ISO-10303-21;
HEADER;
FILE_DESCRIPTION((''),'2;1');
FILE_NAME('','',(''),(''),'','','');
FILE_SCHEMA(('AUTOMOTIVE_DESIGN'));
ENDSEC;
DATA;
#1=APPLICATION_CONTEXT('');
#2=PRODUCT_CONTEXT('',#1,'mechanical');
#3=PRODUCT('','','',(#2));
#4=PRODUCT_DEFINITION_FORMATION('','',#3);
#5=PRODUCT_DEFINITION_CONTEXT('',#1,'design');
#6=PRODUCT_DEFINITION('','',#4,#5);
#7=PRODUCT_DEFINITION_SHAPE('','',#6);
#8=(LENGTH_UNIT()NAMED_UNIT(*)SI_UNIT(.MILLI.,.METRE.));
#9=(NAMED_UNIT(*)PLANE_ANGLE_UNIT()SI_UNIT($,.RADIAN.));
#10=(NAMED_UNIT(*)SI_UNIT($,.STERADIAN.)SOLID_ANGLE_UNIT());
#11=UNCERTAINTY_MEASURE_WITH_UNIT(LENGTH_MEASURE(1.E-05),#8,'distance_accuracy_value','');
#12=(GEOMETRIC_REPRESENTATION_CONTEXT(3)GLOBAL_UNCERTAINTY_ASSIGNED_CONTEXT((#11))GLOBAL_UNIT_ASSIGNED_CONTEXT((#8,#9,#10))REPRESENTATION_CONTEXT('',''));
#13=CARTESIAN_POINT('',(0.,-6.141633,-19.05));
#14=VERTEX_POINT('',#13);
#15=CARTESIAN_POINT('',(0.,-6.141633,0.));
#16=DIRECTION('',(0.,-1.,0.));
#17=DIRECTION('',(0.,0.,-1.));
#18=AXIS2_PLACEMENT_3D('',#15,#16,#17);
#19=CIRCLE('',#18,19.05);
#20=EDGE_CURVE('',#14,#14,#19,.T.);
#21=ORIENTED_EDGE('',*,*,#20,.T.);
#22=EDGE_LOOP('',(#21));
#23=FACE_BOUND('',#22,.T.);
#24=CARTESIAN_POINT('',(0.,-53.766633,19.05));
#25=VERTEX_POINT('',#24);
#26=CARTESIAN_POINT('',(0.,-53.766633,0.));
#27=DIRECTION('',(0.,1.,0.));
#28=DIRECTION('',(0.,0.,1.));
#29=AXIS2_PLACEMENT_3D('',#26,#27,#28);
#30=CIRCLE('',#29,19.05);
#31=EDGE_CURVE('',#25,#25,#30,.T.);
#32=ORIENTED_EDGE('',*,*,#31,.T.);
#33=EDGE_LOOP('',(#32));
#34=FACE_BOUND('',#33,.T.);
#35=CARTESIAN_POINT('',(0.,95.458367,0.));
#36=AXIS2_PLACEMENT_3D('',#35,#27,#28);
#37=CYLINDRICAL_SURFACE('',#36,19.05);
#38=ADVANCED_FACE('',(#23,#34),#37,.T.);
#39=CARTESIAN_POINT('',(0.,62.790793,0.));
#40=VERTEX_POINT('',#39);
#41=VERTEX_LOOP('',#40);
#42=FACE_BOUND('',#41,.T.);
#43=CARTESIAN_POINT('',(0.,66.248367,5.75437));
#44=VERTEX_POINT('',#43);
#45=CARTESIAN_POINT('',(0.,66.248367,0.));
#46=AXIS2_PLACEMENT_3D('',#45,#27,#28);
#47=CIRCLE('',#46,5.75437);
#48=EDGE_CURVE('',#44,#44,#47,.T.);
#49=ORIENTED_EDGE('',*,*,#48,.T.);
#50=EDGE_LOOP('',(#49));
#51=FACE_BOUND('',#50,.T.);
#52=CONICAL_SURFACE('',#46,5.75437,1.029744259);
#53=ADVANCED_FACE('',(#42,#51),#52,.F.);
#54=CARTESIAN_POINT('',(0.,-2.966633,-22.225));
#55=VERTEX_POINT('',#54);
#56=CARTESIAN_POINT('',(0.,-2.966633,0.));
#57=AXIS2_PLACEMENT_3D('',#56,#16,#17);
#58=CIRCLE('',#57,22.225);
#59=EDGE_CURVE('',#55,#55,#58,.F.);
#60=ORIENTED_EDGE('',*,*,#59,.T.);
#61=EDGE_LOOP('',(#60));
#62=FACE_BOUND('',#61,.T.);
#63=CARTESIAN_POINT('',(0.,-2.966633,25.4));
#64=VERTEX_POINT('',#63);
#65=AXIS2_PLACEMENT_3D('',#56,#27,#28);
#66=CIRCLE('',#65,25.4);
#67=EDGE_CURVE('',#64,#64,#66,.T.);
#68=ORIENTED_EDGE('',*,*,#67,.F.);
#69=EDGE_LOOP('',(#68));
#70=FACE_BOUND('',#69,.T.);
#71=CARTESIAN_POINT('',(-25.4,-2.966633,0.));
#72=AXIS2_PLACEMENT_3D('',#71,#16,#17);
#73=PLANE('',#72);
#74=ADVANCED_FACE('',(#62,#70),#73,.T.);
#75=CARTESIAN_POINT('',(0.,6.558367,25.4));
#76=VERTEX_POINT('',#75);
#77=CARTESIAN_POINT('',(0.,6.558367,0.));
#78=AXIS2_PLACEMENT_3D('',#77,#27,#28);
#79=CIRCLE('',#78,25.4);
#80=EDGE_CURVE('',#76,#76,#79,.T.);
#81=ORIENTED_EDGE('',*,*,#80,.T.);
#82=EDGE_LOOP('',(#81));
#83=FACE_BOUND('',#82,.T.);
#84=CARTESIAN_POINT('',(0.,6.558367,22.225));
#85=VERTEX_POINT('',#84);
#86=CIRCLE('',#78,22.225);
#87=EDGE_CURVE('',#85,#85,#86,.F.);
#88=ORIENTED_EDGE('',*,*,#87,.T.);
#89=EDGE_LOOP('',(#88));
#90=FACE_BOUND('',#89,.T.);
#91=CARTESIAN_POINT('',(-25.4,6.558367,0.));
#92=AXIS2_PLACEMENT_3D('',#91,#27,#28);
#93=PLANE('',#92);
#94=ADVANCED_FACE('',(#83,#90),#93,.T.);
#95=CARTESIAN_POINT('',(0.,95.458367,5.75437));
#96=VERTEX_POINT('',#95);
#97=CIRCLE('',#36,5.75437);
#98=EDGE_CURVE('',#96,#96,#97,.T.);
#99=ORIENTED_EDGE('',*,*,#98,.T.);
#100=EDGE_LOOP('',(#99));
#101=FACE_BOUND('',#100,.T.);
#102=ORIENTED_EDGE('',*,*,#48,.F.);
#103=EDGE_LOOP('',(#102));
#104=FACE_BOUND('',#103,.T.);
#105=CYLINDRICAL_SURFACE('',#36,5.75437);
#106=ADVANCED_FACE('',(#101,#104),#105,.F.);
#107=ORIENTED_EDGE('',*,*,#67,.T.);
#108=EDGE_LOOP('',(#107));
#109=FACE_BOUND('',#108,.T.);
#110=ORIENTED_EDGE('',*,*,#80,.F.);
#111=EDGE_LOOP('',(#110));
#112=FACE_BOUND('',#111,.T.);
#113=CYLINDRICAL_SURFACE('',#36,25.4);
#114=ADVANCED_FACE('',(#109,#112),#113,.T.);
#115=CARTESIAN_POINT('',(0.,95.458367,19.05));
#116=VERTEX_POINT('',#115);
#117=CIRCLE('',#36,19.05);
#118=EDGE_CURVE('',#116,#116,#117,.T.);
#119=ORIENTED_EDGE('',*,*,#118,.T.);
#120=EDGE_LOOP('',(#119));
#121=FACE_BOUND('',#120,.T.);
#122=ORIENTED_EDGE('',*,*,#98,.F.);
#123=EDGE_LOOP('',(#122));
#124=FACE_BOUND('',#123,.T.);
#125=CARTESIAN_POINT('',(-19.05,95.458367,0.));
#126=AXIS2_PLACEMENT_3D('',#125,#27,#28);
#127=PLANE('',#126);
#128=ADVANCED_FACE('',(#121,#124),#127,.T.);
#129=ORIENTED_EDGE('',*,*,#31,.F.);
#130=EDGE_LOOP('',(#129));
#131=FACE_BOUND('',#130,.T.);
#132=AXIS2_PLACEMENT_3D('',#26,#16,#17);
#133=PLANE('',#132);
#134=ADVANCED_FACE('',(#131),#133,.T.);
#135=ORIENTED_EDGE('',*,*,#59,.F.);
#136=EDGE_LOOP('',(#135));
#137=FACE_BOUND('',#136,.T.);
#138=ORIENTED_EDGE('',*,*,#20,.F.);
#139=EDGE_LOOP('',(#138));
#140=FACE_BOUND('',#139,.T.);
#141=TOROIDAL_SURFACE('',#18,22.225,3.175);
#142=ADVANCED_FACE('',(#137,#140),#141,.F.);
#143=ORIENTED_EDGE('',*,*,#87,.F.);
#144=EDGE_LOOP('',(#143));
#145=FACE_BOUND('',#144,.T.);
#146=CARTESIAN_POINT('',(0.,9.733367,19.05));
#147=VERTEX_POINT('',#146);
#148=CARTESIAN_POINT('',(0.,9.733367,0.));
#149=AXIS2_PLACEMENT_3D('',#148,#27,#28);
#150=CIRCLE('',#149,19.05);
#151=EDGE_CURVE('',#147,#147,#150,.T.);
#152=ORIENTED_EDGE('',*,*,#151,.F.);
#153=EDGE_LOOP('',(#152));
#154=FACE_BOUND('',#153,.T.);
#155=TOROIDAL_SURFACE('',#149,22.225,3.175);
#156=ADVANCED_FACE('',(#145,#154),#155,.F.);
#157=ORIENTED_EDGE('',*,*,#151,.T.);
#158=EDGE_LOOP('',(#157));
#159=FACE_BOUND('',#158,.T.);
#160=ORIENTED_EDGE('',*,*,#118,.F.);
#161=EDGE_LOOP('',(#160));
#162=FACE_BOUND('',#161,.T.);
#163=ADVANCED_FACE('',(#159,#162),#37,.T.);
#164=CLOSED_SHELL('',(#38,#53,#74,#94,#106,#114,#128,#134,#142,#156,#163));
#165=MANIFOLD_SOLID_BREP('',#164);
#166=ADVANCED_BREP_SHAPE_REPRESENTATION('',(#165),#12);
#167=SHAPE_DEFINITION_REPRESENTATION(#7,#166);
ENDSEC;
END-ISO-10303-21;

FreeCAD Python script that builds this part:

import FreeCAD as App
import Part
import Sketcher
from FreeCAD import Vector
Q = App.Units.Quantity


def edges_at(feature, points):
    """Names of the edges that pass closest to the given points."""
    edges = feature.Shape.Edges
    near = lambda p: min(range(len(edges)), key=lambda i: edges[i].distToShape(Part.Vertex(*p))[0])
    return sorted({f"Edge{near(p) + 1}" for p in points})

doc = App.newDocument("Part")
params = doc.addObject("Spreadsheet::Sheet", "Params")
for row, (alias, value) in enumerate([
    ("sketch1_height", "2 in"),
    ("sketch1_height2", "3.5 in"),
    ("sketch1_width", "0.25 in"),
    ("sketch1_height3", "0.375 in"),
    ("revolution_angle", "360 deg"),
    ("hole_diameter", "0.4531 in"),
    ("hole_depth", "1.15 in"),
    ("fillet_radius", "0.125 in"),
], start=1):
    params.set(f"A{row}", alias)
    params.set(f"B{row}", "=" + value)
    params.setAlias(f"B{row}", alias)

body = doc.addObject("PartDesign::Body", "Body")

sketch1 = body.newObject("Sketcher::SketchObject", "Sketch")
sketch1.AttachmentSupport = (doc.getObject("XY_Plane"), [""])
sketch1.MapMode = "FlatFace"
sketch1.addGeometry([
    Part.LineSegment(Vector(-25.4, 6.558367, 0), Vector(-25.4, -2.966633, 0)),
    Part.LineSegment(Vector(-25.4, -2.966633, 0), Vector(-19.05, -2.966633, 0)),
    Part.LineSegment(Vector(-19.05, -2.966633, 0), Vector(-19.05, -53.766633, 0)),
    Part.LineSegment(Vector(-19.05, -53.766633, 0), Vector(0, -53.766633, 0)),
    Part.LineSegment(Vector(0, -53.766633, 0), Vector(0, 95.458367, 0)),
    Part.LineSegment(Vector(0, 95.458367, 0), Vector(-19.05, 95.458367, 0)),
    Part.LineSegment(Vector(-19.05, 95.458367, 0), Vector(-19.05, 6.558367, 0)),
    Part.LineSegment(Vector(-19.05, 6.558367, 0), Vector(-25.4, 6.558367, 0)),
], False)
sketch1.addConstraint([
    Sketcher.Constraint("Coincident", 0, 2, 1, 1),
    Sketcher.Constraint("Coincident", 1, 2, 2, 1),
    Sketcher.Constraint("Coincident", 2, 2, 3, 1),
    Sketcher.Constraint("Coincident", 3, 2, 4, 1),
    Sketcher.Constraint("Coincident", 4, 2, 5, 1),
    Sketcher.Constraint("Coincident", 5, 2, 6, 1),
    Sketcher.Constraint("Coincident", 6, 2, 7, 1),
    Sketcher.Constraint("Coincident", 7, 2, 0, 1),
    Sketcher.Constraint("Vertical", 0),
    Sketcher.Constraint("Horizontal", 1),
    Sketcher.Constraint("Vertical", 2),
    Sketcher.Constraint("Horizontal", 3),
    Sketcher.Constraint("Vertical", 4),
    Sketcher.Constraint("Horizontal", 5),
    Sketcher.Constraint("Vertical", 6),
    Sketcher.Constraint("Horizontal", 7),
    Sketcher.Constraint("PointOnObject", 3, 2, -2),
    Sketcher.Constraint("Vertical", 2, 2, 5, 2),
    Sketcher.Constraint("DistanceY", 2, 2, 2, 1, Q("2 in")),
    Sketcher.Constraint("DistanceY", 6, 2, 6, 1, Q("3.5 in")),
    Sketcher.Constraint("DistanceX", 0, 2, -1, 1, Q("1 in")),
    Sketcher.Constraint("DistanceX", 1, 1, 1, 2, Q("0.25 in")),
    Sketcher.Constraint("DistanceY", 0, 2, 0, 1, Q("0.375 in")),
    Sketcher.Constraint("DistanceY", 0, 2, -1, 1, 2.966633),
])
sketch1.setExpression("Constraints[18]", "Params.sketch1_height")
sketch1.setExpression("Constraints[19]", "Params.sketch1_height2")
sketch1.setExpression("Constraints[21]", "Params.sketch1_width")
sketch1.setExpression("Constraints[22]", "Params.sketch1_height3")
revolution = body.newObject("PartDesign::Revolution", "Revolution")
revolution.Profile = sketch1
revolution.ReferenceAxis = (sketch1, ["V_Axis"])
revolution.setExpression("Angle", "Params.revolution_angle")

sketch2 = body.newObject("Sketcher::SketchObject", "Sketch001")
sketch2.AttachmentSupport = (doc.getObject("XZ_Plane"), [""])
sketch2.MapMode = "FlatFace"
sketch2.AttachmentOffset = App.Placement(Vector(0, 0, -95.458367), App.Rotation())
sketch2.addGeometry(Part.Circle(Vector(0, 0, 0), Vector(0, 0, 1), 5.75437), False)
sketch2.addConstraint([
    Sketcher.Constraint("Coincident", 0, 3, -1, 1),
    Sketcher.Constraint("Diameter", 0, Q("0.4531 in")),
])
doc.recompute()
hole = body.newObject("PartDesign::Hole", "Hole")
hole.Profile = sketch2
hole.ThreadType = "None"
hole.setExpression("Diameter", "Params.hole_diameter")
hole.DepthType = "Dimension"
hole.setExpression("Depth", "Params.hole_depth")
hole.DrillPoint = "Angled"
hole.DrillPointAngle = 118
hole.Reversed = True
doc.recompute()

fillet = body.newObject("PartDesign::Fillet", "Fillet")
fillet.Base = (hole, edges_at(hole, [(19.05, 6.558, 0), (19.05, -2.967, 0)]))
fillet.setExpression("Radius", "Params.fillet_radius")

doc.recompute()
